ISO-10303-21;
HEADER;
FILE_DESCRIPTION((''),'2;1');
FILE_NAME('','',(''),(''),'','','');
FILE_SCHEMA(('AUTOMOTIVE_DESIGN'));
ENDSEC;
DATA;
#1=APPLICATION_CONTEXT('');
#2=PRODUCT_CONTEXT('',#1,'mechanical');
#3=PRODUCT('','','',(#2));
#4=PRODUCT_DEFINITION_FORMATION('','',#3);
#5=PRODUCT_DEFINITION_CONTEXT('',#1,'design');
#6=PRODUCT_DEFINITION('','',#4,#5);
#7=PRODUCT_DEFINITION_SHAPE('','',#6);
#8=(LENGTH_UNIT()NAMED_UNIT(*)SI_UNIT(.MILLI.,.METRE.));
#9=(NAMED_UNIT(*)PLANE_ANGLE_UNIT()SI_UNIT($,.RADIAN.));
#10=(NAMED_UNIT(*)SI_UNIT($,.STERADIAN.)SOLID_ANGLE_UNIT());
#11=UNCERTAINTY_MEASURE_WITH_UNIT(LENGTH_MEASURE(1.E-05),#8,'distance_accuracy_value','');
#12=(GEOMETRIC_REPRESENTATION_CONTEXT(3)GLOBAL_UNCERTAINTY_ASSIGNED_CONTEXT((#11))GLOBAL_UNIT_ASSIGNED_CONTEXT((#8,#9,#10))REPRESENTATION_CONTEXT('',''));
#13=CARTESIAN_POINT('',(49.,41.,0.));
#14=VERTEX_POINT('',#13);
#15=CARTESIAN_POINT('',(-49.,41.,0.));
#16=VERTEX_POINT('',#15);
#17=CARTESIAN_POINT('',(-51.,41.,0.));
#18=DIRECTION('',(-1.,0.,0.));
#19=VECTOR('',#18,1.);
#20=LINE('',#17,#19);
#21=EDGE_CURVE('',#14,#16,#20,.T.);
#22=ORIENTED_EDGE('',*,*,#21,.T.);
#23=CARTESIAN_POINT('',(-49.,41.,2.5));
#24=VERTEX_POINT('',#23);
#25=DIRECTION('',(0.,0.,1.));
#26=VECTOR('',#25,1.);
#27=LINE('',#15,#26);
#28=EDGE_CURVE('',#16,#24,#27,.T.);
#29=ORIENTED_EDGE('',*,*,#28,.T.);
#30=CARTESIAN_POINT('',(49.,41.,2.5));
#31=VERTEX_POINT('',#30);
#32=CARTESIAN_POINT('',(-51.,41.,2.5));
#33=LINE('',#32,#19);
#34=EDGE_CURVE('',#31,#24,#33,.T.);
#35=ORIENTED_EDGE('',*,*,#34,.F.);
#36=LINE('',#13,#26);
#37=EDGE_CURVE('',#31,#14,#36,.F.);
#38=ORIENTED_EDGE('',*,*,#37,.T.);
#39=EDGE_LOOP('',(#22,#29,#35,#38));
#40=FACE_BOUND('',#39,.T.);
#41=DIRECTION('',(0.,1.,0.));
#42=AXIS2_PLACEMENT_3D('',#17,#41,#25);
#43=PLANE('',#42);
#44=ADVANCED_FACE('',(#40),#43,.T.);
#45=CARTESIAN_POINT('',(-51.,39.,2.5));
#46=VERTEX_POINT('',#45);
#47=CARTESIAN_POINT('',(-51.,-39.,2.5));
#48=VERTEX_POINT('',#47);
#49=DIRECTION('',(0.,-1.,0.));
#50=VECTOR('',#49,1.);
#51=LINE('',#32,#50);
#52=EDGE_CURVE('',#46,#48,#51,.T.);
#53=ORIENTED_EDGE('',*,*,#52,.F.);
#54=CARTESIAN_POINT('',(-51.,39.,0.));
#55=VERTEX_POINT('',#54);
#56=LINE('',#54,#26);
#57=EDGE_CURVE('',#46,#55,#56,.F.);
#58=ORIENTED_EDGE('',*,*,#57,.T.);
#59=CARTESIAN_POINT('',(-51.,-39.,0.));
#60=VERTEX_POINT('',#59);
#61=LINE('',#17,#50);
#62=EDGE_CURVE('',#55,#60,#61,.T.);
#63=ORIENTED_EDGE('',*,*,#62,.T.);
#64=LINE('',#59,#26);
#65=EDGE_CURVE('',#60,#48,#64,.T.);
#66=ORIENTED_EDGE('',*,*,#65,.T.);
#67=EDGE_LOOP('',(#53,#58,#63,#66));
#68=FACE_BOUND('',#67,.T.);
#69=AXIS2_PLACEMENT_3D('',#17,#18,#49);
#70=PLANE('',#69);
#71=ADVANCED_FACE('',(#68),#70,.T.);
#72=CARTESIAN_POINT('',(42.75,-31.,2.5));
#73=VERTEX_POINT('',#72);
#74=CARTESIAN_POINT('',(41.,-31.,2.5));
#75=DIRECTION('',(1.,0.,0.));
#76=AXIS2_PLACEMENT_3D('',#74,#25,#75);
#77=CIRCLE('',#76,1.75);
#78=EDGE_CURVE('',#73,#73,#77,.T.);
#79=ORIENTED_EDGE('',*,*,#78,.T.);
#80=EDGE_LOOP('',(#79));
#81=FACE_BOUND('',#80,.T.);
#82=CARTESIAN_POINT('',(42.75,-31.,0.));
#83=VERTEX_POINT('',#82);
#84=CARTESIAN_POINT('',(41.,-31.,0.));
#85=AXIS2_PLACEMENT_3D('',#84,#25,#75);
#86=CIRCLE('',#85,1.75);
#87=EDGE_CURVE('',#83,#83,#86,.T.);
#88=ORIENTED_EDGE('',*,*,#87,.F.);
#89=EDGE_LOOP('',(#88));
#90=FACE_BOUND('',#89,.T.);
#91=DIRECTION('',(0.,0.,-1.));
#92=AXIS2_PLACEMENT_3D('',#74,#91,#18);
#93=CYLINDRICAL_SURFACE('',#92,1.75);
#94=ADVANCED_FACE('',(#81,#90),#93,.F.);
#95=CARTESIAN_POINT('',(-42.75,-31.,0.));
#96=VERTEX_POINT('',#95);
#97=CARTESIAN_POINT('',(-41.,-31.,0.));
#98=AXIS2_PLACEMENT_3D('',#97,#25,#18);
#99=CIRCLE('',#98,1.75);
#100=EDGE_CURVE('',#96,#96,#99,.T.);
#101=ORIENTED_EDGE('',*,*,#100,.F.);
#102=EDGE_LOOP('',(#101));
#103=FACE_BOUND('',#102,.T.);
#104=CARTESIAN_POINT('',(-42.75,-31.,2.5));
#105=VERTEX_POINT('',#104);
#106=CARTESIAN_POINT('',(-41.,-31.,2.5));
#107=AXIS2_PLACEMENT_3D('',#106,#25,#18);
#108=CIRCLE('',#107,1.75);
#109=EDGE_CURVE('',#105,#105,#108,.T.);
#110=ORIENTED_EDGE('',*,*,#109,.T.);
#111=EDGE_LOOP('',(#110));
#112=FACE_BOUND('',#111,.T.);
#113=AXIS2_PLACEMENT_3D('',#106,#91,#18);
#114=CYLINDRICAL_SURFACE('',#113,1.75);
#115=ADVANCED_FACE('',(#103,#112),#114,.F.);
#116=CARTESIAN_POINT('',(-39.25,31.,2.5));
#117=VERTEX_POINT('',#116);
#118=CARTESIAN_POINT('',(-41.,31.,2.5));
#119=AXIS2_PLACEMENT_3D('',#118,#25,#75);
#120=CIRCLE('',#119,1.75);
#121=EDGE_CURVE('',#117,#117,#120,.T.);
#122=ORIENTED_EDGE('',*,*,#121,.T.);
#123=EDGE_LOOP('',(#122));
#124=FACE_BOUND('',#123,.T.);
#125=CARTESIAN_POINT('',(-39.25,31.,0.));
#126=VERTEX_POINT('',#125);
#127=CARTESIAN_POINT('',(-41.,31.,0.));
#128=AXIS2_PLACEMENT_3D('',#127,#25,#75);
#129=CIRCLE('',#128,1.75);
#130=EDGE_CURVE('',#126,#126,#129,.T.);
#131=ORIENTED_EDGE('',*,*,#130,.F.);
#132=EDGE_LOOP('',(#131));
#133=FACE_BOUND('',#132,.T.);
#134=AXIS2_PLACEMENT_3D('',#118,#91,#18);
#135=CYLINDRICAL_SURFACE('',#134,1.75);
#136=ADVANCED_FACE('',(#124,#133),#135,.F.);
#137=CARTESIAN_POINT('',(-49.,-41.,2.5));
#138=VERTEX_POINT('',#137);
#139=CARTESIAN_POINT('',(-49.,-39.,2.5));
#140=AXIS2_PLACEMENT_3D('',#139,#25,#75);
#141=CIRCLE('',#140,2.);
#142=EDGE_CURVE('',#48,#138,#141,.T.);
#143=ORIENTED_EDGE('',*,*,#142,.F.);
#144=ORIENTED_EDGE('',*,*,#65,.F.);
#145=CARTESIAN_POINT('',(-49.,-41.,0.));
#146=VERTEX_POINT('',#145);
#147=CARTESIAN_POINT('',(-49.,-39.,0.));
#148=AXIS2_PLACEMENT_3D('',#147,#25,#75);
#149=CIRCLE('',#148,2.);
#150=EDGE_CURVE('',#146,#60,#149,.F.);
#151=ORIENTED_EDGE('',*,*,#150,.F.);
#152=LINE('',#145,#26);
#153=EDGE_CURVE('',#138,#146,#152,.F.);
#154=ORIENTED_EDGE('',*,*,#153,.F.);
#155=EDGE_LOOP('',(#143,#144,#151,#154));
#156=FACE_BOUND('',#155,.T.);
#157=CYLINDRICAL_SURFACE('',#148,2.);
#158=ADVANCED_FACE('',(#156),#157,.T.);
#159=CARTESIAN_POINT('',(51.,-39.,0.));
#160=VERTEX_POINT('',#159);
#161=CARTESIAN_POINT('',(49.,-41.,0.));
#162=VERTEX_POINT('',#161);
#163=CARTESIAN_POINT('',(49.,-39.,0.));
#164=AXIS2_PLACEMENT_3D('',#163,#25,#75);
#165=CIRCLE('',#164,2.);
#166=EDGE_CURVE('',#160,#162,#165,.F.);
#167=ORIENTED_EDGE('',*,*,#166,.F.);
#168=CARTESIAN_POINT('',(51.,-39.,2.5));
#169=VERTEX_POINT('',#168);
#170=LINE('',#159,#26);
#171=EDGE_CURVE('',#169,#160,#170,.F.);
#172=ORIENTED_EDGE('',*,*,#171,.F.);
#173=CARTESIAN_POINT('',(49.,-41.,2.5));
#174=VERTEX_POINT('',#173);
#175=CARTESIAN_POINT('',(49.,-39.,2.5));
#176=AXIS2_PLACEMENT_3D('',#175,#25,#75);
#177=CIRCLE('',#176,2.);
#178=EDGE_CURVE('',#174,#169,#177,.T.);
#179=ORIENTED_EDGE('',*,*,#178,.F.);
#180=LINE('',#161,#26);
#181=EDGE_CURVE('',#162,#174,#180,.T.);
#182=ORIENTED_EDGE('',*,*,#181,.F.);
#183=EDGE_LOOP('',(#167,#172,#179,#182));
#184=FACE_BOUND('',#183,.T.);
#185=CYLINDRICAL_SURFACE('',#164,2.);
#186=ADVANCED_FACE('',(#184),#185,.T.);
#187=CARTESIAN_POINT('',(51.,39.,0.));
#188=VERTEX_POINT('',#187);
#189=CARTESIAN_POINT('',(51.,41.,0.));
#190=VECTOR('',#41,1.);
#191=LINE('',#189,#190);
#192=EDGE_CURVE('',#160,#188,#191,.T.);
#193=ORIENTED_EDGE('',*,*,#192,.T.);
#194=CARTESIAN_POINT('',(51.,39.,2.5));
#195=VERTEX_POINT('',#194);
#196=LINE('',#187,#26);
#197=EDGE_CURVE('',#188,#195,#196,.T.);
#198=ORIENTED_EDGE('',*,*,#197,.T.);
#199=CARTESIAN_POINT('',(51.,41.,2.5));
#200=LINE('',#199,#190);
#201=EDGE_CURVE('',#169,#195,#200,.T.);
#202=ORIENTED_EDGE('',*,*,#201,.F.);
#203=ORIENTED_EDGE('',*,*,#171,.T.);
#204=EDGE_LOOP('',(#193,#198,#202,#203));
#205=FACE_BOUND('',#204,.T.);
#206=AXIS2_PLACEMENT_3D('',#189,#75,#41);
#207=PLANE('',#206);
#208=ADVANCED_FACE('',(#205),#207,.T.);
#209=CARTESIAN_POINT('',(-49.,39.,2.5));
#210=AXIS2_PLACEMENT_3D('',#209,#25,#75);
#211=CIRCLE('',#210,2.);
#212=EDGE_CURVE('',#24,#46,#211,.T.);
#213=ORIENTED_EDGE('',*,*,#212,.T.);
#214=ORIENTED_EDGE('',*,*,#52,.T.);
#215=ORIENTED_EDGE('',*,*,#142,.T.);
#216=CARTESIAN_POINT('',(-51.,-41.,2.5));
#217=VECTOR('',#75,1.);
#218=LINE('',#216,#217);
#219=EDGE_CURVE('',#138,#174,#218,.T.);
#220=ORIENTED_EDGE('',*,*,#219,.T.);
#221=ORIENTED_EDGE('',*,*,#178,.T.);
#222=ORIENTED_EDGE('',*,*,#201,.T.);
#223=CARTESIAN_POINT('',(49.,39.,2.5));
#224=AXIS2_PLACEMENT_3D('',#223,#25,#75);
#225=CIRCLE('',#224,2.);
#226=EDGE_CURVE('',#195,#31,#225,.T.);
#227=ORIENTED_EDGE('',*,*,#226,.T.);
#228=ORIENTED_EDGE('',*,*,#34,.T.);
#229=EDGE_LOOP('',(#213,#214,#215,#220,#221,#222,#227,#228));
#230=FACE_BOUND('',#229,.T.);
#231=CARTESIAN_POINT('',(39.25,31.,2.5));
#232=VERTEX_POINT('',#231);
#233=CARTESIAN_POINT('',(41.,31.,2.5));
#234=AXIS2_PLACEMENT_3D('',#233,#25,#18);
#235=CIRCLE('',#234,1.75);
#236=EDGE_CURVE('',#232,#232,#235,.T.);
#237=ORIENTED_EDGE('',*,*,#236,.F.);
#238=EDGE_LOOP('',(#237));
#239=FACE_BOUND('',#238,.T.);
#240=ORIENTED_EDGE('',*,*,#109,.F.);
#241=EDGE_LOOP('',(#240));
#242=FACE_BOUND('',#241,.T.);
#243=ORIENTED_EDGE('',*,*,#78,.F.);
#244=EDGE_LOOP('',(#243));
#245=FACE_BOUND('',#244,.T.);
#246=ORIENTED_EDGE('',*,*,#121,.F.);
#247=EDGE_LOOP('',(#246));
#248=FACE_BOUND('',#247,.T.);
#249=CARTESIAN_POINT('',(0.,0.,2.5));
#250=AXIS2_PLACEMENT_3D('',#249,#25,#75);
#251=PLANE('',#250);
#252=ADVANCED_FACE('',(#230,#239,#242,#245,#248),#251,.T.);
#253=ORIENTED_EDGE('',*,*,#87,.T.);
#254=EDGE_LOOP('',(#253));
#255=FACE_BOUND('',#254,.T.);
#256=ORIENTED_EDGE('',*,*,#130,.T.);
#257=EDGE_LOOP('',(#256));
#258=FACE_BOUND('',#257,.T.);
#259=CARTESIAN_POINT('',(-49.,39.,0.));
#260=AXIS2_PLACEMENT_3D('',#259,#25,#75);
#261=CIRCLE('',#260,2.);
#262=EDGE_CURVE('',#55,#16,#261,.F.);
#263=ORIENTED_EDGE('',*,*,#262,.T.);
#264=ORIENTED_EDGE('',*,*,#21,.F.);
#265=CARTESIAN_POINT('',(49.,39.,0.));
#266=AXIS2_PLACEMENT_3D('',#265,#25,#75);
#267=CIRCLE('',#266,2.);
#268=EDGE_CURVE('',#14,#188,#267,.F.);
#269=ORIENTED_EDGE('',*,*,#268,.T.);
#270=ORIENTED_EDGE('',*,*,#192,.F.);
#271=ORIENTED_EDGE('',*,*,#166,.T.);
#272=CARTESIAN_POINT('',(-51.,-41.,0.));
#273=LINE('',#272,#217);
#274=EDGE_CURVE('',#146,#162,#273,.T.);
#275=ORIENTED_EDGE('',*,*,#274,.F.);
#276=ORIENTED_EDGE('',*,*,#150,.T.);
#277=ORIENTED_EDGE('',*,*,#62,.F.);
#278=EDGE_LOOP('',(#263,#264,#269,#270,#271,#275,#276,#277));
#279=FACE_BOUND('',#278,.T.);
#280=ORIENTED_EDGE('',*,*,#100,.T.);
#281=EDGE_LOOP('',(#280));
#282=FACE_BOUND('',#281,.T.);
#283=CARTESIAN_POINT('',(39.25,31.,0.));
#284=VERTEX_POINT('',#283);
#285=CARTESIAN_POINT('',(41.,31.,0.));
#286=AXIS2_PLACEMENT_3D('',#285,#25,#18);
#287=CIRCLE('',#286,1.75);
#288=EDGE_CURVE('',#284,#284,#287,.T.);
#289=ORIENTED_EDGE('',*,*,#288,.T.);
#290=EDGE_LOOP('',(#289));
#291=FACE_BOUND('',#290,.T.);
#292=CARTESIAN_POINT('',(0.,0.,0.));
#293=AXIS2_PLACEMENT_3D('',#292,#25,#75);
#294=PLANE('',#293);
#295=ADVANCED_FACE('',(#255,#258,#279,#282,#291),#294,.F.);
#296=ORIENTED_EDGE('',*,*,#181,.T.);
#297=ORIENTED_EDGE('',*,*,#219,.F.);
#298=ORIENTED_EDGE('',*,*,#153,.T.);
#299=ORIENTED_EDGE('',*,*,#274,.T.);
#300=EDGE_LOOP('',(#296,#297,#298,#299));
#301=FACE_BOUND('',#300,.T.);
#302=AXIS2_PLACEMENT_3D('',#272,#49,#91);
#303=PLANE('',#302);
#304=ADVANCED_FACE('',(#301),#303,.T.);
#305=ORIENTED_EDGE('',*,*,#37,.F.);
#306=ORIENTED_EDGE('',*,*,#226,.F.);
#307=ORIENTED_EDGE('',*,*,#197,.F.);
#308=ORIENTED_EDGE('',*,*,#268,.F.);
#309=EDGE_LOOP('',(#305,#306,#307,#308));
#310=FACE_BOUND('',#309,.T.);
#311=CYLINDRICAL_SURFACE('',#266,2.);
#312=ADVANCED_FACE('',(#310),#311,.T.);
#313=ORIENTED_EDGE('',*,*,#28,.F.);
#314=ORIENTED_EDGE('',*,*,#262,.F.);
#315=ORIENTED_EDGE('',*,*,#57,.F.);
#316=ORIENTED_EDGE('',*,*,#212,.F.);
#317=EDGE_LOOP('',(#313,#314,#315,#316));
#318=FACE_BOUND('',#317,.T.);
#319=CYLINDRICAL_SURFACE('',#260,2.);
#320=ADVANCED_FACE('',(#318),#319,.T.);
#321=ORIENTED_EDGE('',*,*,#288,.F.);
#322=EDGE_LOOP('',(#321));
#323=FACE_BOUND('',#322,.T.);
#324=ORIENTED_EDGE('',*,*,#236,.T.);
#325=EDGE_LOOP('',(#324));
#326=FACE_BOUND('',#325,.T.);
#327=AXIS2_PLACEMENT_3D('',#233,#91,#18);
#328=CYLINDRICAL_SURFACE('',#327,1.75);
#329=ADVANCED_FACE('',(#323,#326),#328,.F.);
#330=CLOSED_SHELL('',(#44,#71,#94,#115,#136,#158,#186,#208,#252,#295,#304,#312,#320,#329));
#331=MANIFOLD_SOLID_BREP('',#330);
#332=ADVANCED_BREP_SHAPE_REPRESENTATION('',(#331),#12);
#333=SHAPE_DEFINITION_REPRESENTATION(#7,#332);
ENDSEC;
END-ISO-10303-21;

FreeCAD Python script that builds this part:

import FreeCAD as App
import Part
import Sketcher
from FreeCAD import Vector
Q = App.Units.Quantity


def edges_at(feature, points):
    """Names of the edges that pass closest to the given points."""
    edges = feature.Shape.Edges
    near = lambda p: min(range(len(edges)), key=lambda i: edges[i].distToShape(Part.Vertex(*p))[0])
    return sorted({f"Edge{near(p) + 1}" for p in points})


def add_polygon(sketch, points):
    """Adds a closed chain of lines whose ends are joined by coincident constraints."""
    first, n = sketch.GeometryCount, len(points)
    for a, b in zip(points, points[1:] + points[:1]):
        sketch.addGeometry(Part.LineSegment(App.Vector(*a, 0), App.Vector(*b, 0)), False)
    for i in range(n):
        sketch.addConstraint(Sketcher.Constraint("Coincident", first + i, 2, first + (i + 1) % n, 1))

doc = App.newDocument("Part")
body = doc.addObject("PartDesign::Body", "Body")

sketch1 = doc.addObject("Sketcher::SketchObject", "Sketch")
body.addObject(sketch1)
sketch1.AttachmentSupport = (doc.XY_Plane, [""])
sketch1.MapMode = "FlatFace"
add_polygon(sketch1, [(-45, 35), (-45, -35), (45, -35), (45, 35)])
sketch1.addGeometry(Part.Circle(Vector(-41, -31, 0), Vector(0, 0, 1), 1.8), False)
sketch1.addGeometry(Part.Circle(Vector(41, -31, 0), Vector(0, 0, 1), 1.8), False)
sketch1.addGeometry(Part.Circle(Vector(-41, 31, 0), Vector(0, 0, 1), 1.8), False)
sketch1.addGeometry(Part.Circle(Vector(41, 31, 0), Vector(0, 0, 1), 1.8), False)
sketch1.addConstraint([
    Sketcher.Constraint("Vertical", 0),
    Sketcher.Constraint("Horizontal", 1),
    Sketcher.Constraint("Vertical", 2),
    Sketcher.Constraint("Horizontal", 3),
    Sketcher.Constraint("Equal", 4, 5),
    Sketcher.Constraint("Equal", 5, 6),
    Sketcher.Constraint("Equal", 6, 7),
    Sketcher.Constraint("Symmetric", 5, 3, 6, 3, -1, 1),
    Sketcher.Constraint("Symmetric", 4, 3, 7, 3, -1, 1),
    Sketcher.Constraint("Symmetric", 0, 2, 2, 2, -1, 1),
    Sketcher.Constraint("Symmetric", 4, 3, 5, 3, -2),
    Sketcher.Constraint("Diameter", 4, Q("3.5 mm")),
    Sketcher.Constraint("DistanceX", 1, 1, 1, 2, Q("90 mm")),
    Sketcher.Constraint("DistanceY", 0, 2, 0, 1, Q("70 mm")),
    Sketcher.Constraint("DistanceX", 4, 3, -1, 1, Q("41 mm")),
    Sketcher.Constraint("DistanceY", 4, 3, -1, 1, Q("31 mm")),
])
pad1 = doc.addObject("PartDesign::Pad", "Pad")
body.addObject(pad1)
pad1.Profile = sketch1
pad1.Length = 2.5

sketch2 = doc.addObject("Sketcher::SketchObject", "Sketch001")
body.addObject(sketch2)
sketch2.AttachmentSupport = (doc.XY_Plane, [""])
sketch2.MapMode = "FlatFace"
sketch2.AttachmentOffset = App.Placement(Vector(0, 0, 2.5), App.Rotation())
add_polygon(sketch2, [(-51, 41), (-51, -41), (51, -41), (51, 41)])
add_polygon(sketch2, [(45, -35), (-45, -35), (-45, 35), (45, 35)])
sketch2.addConstraint([
    Sketcher.Constraint("Vertical", 0),
    Sketcher.Constraint("Horizontal", 1),
    Sketcher.Constraint("Vertical", 2),
    Sketcher.Constraint("Horizontal", 3),
    Sketcher.Constraint("Horizontal", 4),
    Sketcher.Constraint("Vertical", 5),
    Sketcher.Constraint("Horizontal", 6),
    Sketcher.Constraint("Vertical", 7),
    Sketcher.Constraint("Symmetric", 0, 2, 2, 2, -1, 1),
    Sketcher.Constraint("Symmetric", 4, 2, 6, 2, -1, 1),
    Sketcher.Constraint("DistanceX", 1, 1, 1, 2, Q("102 mm")),
    Sketcher.Constraint("DistanceX", 4, 2, 4, 1, Q("90 mm")),
    Sketcher.Constraint("DistanceY", 0, 2, 0, 1, Q("82 mm")),
    Sketcher.Constraint("DistanceY", 5, 1, 5, 2, Q("70 mm")),
])
pad2 = doc.addObject("PartDesign::Pad", "Pad001")
body.addObject(pad2)
pad2.Profile = sketch2
pad2.Length = 2.5
pad2.Reversed = True
doc.recompute()

fillet = doc.addObject("PartDesign::Fillet", "Fillet")
body.addObject(fillet)
fillet.Base = (pad2, edges_at(pad2, [
    (-51, -41, 1.25),
    (-51, 41, 1.25),
    (51, 41, 1.25),
    (51, -41, 1.25),
]))
fillet.Radius = 2

doc.recompute()
